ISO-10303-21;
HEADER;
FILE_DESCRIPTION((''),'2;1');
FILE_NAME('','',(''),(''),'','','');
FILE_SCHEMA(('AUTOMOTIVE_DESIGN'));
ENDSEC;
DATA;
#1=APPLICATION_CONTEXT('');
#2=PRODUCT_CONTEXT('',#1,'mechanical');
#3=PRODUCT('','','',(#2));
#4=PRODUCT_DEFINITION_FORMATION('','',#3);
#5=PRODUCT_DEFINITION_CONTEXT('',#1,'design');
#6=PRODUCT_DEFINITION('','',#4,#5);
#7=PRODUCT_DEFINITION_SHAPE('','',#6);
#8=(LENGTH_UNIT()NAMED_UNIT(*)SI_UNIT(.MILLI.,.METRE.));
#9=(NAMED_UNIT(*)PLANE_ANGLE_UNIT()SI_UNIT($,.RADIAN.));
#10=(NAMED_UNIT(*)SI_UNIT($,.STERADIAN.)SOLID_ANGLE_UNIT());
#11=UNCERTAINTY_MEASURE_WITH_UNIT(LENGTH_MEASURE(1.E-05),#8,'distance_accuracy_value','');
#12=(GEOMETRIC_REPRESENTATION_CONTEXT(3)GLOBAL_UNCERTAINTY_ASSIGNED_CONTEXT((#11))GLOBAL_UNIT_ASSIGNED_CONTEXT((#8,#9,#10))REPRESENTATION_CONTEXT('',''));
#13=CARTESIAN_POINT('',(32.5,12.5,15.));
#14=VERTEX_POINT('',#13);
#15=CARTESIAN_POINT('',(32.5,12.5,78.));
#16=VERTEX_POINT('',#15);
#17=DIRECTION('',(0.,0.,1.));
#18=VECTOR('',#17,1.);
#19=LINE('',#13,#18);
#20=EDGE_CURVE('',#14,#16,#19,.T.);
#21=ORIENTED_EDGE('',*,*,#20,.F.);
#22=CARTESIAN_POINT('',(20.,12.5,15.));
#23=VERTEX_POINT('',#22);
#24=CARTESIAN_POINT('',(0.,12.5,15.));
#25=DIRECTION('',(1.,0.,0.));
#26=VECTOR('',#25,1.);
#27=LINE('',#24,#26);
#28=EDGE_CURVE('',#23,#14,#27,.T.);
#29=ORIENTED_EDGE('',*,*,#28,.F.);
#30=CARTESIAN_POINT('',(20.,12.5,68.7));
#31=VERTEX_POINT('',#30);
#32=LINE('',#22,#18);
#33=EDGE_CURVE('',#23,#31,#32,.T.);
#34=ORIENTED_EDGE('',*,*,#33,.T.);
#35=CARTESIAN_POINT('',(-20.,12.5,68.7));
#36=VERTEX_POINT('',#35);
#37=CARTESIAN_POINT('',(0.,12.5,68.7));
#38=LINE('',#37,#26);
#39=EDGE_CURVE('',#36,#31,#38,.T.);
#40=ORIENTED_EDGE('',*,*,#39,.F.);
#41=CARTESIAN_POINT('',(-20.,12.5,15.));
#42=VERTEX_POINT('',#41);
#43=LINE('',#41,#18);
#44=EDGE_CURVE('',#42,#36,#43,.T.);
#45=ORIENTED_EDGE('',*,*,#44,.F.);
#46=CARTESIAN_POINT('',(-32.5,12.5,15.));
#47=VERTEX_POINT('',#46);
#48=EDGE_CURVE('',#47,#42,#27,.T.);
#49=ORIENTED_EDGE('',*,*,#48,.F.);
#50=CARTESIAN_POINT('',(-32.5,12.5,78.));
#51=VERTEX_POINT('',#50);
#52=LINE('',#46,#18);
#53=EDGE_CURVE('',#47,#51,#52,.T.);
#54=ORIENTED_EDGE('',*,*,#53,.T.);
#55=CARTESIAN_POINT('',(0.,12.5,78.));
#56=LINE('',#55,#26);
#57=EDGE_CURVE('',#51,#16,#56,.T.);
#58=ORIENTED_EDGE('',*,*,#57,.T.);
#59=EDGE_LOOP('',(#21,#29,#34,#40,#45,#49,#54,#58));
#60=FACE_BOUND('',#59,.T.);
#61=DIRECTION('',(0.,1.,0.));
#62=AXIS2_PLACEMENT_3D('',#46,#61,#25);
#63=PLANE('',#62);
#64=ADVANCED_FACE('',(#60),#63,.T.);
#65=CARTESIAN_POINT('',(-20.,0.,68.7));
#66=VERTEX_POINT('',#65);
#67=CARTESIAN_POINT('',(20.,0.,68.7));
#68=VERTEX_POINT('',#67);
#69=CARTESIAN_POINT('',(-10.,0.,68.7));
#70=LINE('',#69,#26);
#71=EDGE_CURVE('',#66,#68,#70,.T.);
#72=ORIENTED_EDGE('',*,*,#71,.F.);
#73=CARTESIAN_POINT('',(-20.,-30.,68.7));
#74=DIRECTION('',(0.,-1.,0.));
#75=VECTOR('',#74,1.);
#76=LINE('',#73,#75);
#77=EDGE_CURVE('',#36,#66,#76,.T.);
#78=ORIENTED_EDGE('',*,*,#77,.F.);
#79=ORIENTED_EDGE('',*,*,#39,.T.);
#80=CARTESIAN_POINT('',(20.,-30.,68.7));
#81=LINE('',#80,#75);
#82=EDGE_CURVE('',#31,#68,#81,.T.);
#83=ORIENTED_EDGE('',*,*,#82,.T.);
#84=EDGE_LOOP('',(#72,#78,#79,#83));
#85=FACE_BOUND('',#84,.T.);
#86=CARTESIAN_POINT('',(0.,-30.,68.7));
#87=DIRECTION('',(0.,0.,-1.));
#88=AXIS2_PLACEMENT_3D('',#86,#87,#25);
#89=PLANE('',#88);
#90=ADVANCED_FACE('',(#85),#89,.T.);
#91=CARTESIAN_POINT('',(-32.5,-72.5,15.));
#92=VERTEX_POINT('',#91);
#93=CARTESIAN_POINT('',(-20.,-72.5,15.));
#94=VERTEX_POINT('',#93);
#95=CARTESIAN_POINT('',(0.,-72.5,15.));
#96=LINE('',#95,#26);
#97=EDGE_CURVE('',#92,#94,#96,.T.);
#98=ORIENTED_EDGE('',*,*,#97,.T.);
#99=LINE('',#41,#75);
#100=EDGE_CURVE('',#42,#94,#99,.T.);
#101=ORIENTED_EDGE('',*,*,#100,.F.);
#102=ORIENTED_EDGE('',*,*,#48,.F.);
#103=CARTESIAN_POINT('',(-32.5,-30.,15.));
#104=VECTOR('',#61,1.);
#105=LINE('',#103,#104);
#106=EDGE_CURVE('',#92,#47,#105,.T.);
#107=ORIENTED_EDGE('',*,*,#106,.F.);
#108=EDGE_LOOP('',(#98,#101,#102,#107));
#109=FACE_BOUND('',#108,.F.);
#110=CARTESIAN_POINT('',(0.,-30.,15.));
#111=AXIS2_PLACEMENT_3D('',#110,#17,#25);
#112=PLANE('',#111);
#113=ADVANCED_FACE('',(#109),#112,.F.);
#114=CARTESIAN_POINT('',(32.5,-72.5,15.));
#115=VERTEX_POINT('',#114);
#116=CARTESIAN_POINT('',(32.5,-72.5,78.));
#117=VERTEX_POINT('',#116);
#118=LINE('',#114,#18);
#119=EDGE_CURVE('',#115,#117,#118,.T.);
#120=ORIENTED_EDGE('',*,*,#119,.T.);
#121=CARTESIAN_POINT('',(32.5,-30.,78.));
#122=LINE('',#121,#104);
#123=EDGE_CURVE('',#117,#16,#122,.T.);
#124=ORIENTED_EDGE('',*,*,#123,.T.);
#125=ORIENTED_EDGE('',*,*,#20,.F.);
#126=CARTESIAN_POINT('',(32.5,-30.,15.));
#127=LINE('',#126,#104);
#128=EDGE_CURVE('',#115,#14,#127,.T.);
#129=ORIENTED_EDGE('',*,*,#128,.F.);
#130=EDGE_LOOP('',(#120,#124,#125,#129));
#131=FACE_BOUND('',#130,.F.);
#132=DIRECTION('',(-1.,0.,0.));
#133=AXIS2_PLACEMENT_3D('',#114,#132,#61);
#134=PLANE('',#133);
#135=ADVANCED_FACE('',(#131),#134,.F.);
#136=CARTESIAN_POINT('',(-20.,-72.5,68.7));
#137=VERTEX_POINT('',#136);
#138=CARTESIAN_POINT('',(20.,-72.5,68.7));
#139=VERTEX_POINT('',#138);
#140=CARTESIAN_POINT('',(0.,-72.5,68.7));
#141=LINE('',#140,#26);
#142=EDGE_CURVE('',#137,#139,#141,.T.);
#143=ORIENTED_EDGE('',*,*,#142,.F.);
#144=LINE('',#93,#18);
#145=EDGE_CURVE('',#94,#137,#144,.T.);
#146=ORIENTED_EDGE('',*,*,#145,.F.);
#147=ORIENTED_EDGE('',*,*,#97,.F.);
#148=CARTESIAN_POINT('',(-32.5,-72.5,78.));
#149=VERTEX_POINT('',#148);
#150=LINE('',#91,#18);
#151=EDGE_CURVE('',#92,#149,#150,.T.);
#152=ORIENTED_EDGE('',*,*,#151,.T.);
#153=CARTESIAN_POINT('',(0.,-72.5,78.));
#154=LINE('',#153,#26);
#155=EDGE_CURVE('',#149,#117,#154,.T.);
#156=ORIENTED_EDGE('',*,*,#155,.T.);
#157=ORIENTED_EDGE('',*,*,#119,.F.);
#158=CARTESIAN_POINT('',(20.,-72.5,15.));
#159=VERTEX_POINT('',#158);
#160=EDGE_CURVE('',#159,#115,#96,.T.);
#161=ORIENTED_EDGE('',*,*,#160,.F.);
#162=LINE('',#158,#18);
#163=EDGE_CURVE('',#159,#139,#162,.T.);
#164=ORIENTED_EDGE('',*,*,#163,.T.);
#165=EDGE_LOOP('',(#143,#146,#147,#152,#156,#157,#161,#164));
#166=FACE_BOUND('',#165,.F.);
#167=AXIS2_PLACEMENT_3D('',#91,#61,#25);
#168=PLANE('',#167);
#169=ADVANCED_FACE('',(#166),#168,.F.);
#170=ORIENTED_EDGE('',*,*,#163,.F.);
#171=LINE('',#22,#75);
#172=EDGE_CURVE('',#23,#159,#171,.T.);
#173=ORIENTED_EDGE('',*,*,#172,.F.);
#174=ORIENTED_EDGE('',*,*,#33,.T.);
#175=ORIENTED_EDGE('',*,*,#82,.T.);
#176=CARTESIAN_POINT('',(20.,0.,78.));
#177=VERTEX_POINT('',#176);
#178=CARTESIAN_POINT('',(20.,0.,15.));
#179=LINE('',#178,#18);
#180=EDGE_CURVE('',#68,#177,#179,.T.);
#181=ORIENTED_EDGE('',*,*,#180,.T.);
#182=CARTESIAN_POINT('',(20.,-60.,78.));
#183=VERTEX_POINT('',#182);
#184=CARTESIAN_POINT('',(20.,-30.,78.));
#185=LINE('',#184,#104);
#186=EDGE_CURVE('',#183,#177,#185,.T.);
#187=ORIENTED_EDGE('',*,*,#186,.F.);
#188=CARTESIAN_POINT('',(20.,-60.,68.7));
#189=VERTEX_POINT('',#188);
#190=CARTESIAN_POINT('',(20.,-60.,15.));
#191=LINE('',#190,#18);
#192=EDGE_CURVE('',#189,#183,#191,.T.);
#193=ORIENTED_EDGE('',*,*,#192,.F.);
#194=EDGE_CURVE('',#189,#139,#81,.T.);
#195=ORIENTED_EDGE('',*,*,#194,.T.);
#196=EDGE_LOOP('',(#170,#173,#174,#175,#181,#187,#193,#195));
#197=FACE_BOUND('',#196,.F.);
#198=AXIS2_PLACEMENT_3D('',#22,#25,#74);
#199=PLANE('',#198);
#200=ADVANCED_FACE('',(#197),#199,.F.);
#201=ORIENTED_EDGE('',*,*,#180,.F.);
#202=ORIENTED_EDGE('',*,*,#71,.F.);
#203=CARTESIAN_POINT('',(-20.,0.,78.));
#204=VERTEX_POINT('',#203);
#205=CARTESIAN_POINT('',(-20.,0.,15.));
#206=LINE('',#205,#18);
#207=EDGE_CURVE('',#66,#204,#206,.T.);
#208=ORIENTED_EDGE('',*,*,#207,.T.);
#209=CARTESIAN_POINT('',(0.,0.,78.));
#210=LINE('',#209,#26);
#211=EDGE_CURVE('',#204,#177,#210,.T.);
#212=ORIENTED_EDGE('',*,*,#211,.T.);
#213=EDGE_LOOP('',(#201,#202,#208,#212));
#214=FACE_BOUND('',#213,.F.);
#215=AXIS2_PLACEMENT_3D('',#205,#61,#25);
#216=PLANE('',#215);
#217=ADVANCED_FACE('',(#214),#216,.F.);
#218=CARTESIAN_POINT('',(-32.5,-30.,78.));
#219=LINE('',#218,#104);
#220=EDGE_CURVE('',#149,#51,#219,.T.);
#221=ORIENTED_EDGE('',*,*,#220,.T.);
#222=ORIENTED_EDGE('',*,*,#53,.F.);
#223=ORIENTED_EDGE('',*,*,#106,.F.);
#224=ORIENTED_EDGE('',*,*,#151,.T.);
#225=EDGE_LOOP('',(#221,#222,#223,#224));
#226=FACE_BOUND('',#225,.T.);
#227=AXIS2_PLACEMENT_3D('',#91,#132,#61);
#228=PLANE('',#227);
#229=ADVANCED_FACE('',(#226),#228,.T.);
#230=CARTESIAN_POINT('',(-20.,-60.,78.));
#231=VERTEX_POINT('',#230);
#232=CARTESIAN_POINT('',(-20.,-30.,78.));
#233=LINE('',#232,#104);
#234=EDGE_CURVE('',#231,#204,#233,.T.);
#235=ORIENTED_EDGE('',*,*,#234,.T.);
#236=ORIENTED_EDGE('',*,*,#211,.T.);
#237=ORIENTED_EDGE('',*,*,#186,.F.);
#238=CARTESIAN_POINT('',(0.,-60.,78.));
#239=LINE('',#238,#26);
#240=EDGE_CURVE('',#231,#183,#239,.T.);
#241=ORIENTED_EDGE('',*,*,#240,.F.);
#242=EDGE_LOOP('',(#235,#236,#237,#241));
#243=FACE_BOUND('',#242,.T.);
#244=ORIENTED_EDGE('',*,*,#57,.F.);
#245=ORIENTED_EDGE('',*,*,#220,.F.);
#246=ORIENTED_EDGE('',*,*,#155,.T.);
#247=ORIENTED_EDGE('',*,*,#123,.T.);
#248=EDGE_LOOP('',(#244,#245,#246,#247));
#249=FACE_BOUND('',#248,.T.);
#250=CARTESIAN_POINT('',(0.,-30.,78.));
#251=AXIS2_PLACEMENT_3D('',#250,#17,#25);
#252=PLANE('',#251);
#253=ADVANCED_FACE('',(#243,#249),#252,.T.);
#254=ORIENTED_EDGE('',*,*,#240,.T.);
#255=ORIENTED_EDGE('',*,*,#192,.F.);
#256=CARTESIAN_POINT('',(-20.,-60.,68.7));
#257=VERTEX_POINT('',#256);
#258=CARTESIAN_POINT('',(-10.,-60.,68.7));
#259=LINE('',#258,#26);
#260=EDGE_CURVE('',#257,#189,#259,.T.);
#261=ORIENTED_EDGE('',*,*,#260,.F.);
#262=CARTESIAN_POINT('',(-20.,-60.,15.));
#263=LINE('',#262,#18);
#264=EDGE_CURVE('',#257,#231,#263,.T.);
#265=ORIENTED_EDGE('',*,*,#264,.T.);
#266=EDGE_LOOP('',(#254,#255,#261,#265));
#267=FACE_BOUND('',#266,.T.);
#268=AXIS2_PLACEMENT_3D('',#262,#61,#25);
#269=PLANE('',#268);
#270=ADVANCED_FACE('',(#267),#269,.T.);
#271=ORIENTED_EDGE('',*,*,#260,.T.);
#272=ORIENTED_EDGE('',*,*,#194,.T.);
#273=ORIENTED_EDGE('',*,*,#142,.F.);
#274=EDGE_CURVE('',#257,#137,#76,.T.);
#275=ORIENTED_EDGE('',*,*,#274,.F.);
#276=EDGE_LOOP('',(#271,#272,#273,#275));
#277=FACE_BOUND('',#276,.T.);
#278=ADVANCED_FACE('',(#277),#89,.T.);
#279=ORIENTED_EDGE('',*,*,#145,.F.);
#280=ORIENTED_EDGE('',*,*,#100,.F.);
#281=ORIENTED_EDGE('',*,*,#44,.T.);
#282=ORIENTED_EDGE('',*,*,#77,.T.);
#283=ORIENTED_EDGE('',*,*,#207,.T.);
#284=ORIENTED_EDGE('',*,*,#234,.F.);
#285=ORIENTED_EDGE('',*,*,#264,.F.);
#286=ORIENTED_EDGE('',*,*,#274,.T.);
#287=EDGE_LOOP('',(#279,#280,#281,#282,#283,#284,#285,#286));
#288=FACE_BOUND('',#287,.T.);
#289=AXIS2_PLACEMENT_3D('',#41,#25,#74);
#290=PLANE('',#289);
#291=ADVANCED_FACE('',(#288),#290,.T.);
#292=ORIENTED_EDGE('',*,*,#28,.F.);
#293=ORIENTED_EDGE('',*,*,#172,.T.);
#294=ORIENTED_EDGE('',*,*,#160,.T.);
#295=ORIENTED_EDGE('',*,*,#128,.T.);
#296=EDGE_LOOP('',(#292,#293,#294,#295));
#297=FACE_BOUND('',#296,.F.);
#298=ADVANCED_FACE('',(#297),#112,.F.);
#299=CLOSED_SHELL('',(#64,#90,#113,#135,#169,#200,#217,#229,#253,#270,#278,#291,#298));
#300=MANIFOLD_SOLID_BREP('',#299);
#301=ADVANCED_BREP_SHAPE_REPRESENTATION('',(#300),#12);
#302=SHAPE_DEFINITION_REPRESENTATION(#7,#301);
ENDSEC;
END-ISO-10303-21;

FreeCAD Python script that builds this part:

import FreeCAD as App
import Part
import Sketcher

V = App.Vector


def add_polygon(sketch, points):
    """Adds a closed chain of lines whose ends are joined by coincident constraints."""
    first, n = sketch.GeometryCount, len(points)
    for a, b in zip(points, points[1:] + points[:1]):
        sketch.addGeometry(Part.LineSegment(App.Vector(*a, 0), App.Vector(*b, 0)), False)
    for i in range(n):
        sketch.addConstraint(Sketcher.Constraint("Coincident", first + i, 2, first + (i + 1) % n, 1))

doc = App.newDocument("Part")
body = doc.addObject("PartDesign::Body", "Body")

# Sketch on XY plane
sketch1 = body.newObject("Sketcher::SketchObject", "Sketch")
sketch1.AttachmentSupport = (doc.getObject("XY_Plane"), [""])
sketch1.MapMode = "FlatFace"
add_polygon(sketch1, [(-32, 12), (-32, -72), (32, -72), (32, 12)])  # lines 0-3
sketch1.addConstraint([
    Sketcher.Constraint("Vertical", 0),
    Sketcher.Constraint("Horizontal", 1),
    Sketcher.Constraint("Vertical", 2),
    Sketcher.Constraint("Horizontal", 3),
    Sketcher.Constraint("DistanceX", 1, 1, 1, 2, 65.0),
    Sketcher.Constraint("DistanceY", 0, 2, 0, 1, 85.0),
    Sketcher.Constraint("DistanceX", 0, 2, -1, 1, 32.5),
    Sketcher.Constraint("DistanceY", 0, 2, -1, 1, 72.5),
])
pad1 = body.newObject("PartDesign::Pad", "Pad")
pad1.Profile = sketch1
pad1.Length = 63

# Sketch on XY plane
sketch2 = body.newObject("Sketcher::SketchObject", "Sketch001")
sketch2.AttachmentSupport = (doc.getObject("XY_Plane"), [""])
sketch2.MapMode = "FlatFace"
add_polygon(sketch2, [(-20, -72), (-20, 12), (20, 12), (20, -72)])  # lines 0-3
sketch2.addConstraint([
    Sketcher.Constraint("Vertical", 0),
    Sketcher.Constraint("Horizontal", 1),
    Sketcher.Constraint("Vertical", 2),
    Sketcher.Constraint("Horizontal", 3),
    Sketcher.Constraint("DistanceX", 1, 1, 1, 2, 40.0),
    Sketcher.Constraint("DistanceY", 0, 1, 0, 2, 85.0),
    Sketcher.Constraint("DistanceX", 0, 2, -1, 1, 20.0),
    Sketcher.Constraint("DistanceY", -1, 1, 0, 2, 12.5),
])
pocket1 = body.newObject("PartDesign::Pocket", "Pocket")
pocket1.Profile = sketch2
pocket1.Length = 53.7
pocket1.Reversed = True

# Sketch on XY plane
sketch3 = body.newObject("Sketcher::SketchObject", "Sketch002")
sketch3.AttachmentSupport = (doc.getObject("XY_Plane"), [""])
sketch3.MapMode = "FlatFace"
add_polygon(sketch3, [(-20, 0), (-20, -60), (20, -60), (20, 0)])  # lines 0-3
sketch3.addConstraint([
    Sketcher.Constraint("Vertical", 0),
    Sketcher.Constraint("Horizontal", 1),
    Sketcher.Constraint("Vertical", 2),
    Sketcher.Constraint("Horizontal", 3),
    Sketcher.Constraint("Symmetric", 2, 2, 3, 2, -1, 1),
    Sketcher.Constraint("DistanceX", 1, 1, 1, 2, 40.0),
    Sketcher.Constraint("DistanceY", 0, 2, 0, 1, 60.0),
])
pocket2 = body.newObject("PartDesign::Pocket", "Pocket001")
pocket2.Profile = sketch3
pocket2.Length = 63
pocket2.Reversed = True
body2 = doc.addObject("PartDesign::Body", "Body001")
doc.recompute()

body.Placement = App.Placement(V(0, 0, 15), App.Rotation(V(0, 0, 1), 0))
boolean = body2.newObject("PartDesign::Boolean", "Boolean")
boolean.Type = "Fuse"
boolean.addObjects([body])

doc.recompute()
